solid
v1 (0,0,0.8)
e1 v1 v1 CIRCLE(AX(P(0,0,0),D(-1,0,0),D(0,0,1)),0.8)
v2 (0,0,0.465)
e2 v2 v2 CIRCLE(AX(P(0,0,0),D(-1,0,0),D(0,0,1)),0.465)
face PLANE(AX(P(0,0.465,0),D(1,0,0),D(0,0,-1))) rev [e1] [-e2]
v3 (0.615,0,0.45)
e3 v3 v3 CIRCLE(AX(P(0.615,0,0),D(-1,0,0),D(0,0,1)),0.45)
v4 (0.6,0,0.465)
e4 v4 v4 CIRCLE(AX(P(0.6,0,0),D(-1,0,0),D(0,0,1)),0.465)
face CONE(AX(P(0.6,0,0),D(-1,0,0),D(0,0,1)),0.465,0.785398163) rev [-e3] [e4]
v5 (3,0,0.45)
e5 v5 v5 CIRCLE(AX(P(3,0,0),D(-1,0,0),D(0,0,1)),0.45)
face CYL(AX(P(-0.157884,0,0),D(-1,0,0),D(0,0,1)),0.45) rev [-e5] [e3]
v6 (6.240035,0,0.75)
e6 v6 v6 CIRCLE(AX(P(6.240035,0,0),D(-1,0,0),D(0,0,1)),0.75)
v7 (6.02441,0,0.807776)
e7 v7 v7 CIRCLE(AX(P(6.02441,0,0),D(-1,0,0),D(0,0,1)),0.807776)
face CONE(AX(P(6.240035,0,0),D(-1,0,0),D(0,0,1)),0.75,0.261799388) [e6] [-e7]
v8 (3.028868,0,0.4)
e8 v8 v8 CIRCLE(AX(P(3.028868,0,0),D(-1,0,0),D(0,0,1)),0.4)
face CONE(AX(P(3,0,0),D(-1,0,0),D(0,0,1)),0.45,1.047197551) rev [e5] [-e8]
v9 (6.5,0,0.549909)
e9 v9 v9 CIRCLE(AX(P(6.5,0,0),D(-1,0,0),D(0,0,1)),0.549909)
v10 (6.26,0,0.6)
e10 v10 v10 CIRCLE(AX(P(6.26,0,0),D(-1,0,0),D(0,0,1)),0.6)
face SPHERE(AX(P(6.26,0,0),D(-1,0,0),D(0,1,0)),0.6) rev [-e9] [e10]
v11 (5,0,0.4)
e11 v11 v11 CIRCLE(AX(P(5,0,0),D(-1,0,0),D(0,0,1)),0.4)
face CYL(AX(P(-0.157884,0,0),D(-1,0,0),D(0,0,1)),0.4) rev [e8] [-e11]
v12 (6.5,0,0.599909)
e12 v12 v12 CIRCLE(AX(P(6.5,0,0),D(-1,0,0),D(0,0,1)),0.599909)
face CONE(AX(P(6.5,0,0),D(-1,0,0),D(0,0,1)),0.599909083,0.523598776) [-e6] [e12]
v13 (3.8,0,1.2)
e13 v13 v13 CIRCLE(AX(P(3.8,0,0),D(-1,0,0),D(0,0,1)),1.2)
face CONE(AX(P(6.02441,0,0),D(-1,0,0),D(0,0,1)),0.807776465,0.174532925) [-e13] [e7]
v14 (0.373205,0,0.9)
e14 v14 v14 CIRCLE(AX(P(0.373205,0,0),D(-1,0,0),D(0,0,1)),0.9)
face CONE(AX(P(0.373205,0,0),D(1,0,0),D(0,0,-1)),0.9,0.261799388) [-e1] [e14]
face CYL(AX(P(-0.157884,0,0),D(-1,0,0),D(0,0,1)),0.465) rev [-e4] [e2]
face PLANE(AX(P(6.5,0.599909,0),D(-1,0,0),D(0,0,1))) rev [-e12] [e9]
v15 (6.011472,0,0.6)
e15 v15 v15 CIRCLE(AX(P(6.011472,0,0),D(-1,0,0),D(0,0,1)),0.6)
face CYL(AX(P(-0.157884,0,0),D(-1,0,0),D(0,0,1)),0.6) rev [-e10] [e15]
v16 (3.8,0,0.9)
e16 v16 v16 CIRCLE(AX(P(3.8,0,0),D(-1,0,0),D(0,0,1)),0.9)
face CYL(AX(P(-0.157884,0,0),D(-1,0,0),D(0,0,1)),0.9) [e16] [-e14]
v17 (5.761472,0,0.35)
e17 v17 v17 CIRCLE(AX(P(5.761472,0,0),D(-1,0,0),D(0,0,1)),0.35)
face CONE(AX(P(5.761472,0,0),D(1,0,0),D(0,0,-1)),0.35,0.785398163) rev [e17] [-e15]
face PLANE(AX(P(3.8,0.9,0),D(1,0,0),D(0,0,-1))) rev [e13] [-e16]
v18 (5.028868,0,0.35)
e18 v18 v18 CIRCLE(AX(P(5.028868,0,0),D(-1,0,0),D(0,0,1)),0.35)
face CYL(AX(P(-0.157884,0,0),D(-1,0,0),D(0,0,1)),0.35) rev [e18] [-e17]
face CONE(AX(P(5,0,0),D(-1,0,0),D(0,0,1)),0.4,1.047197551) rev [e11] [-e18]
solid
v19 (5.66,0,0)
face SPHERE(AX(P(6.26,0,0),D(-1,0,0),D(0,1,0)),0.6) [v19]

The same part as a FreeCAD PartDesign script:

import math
import FreeCAD as App
import Part
import Sketcher
Q = App.Units.Quantity

doc = App.newDocument("Part")
body = doc.addObject("PartDesign::Body", "Body")

# Sketch on XY plane
sketch1 = doc.addObject("Sketcher::SketchObject", "Sketch")
body.addObject(sketch1)
sketch1.AttachmentSupport = (doc.XY_Plane, [""])
sketch1.MapMode = "FlatFace"
sketch1.addGeometry([
    Part.LineSegment(App.Vector(0, 0.8, 0), App.Vector(0, 0.465, 0)),  # 0
    Part.LineSegment(App.Vector(0, 0.465, 0), App.Vector(0.6, 0.465, 0)),  # 1
    Part.LineSegment(App.Vector(0.6, 0.465, 0), App.Vector(0.615, 0.45, 0)),  # 2
    Part.LineSegment(App.Vector(0.615, 0.45, 0), App.Vector(3, 0.45, 0)),  # 3
    Part.LineSegment(App.Vector(3, 0.45, 0), App.Vector(3.029, 0.4, 0)),  # 4
    Part.LineSegment(App.Vector(3.029, 0.4, 0), App.Vector(5, 0.4, 0)),  # 5
    Part.LineSegment(App.Vector(5, 0.4, 0), App.Vector(5.029, 0.35, 0)),  # 6
    Part.LineSegment(App.Vector(5.029, 0.35, 0), App.Vector(5.761, 0.35, 0)),  # 7
    Part.LineSegment(App.Vector(5.761, 0.35, 0), App.Vector(6.011, 0.6, 0)),  # 8
    Part.LineSegment(App.Vector(6.011, 0.6, 0), App.Vector(6.26, 0.6, 0)),  # 9
    Part.ArcOfCircle(Part.Circle(App.Vector(6.26, 0, 0), App.Vector(0, 0, 1), 0.6), math.radians(66), math.radians(90)),  # 10
    Part.LineSegment(App.Vector(6.5, 0.55, 0), App.Vector(6.5, 0.6, 0)),  # 11
    Part.LineSegment(App.Vector(6.5, 0.6, 0), App.Vector(6.24, 0.75, 0)),  # 12
    Part.LineSegment(App.Vector(6.24, 0.75, 0), App.Vector(6.024, 0.808, 0)),  # 13
    Part.LineSegment(App.Vector(6.024, 0.808, 0), App.Vector(3.8, 1.2, 0)),  # 14
    Part.LineSegment(App.Vector(3.8, 1.2, 0), App.Vector(3.8, 0.9, 0)),  # 15
    Part.LineSegment(App.Vector(3.8, 0.9, 0), App.Vector(0.373, 0.9, 0)),  # 16
    Part.LineSegment(App.Vector(0.373, 0.9, 0), App.Vector(0, 0.8, 0)),  # 17
], False)
sketch1.addConstraint([
    Sketcher.Constraint("Coincident", 0, 2, 1, 1),
    Sketcher.Constraint("Coincident", 1, 2, 2, 1),
    Sketcher.Constraint("Coincident", 2, 2, 3, 1),
    Sketcher.Constraint("Coincident", 3, 2, 4, 1),
    Sketcher.Constraint("Coincident", 4, 2, 5, 1),
    Sketcher.Constraint("Coincident", 5, 2, 6, 1),
    Sketcher.Constraint("Coincident", 6, 2, 7, 1),
    Sketcher.Constraint("Coincident", 7, 2, 8, 1),
    Sketcher.Constraint("Coincident", 8, 2, 9, 1),
    Sketcher.Constraint("Tangent", 9, 2, 10, 2),
    Sketcher.Constraint("Coincident", 10, 1, 11, 1),
    Sketcher.Constraint("Coincident", 11, 2, 12, 1),
    Sketcher.Constraint("Coincident", 12, 2, 13, 1),
    Sketcher.Constraint("Coincident", 13, 2, 14, 1),
    Sketcher.Constraint("Coincident", 14, 2, 15, 1),
    Sketcher.Constraint("Coincident", 15, 2, 16, 1),
    Sketcher.Constraint("Coincident", 16, 2, 17, 1),
    Sketcher.Constraint("Coincident", 17, 2, 0, 1),
    Sketcher.Constraint("Vertical", 0),
    Sketcher.Constraint("Horizontal", 1),
    Sketcher.Constraint("Horizontal", 3),
    Sketcher.Constraint("Horizontal", 5),
    Sketcher.Constraint("Horizontal", 7),
    Sketcher.Constraint("Horizontal", 9),
    Sketcher.Constraint("Vertical", 11),
    Sketcher.Constraint("Vertical", 15),
    Sketcher.Constraint("Horizontal", 16),
    Sketcher.Constraint("PointOnObject", 10, 3, -1),
    Sketcher.Constraint("PointOnObject", 0, 2, -2),
    Sketcher.Constraint("Parallel", 4, 6),
    Sketcher.Constraint("Perpendicular", 2, 8),
    Sketcher.Constraint("Equal", 4, 6),
    Sketcher.Constraint("Radius", 10, 0.6),
    Sketcher.Constraint("Angle", 2, Q("-45 deg")),
    Sketcher.Constraint("Angle", 4, Q("-60 deg")),
    Sketcher.Constraint("Angle", 12, Q("150 deg")),
    Sketcher.Constraint("Angle", 13, Q("165 deg")),
    Sketcher.Constraint("Angle", 14, Q("170 deg")),
    Sketcher.Constraint("Angle", 17, Q("-165 deg")),
    Sketcher.Constraint("DistanceX", 1, 1, 1, 2, 0.6),
    Sketcher.Constraint("DistanceY", 15, 2, 15, 1, 0.3),
    Sketcher.Constraint("DistanceX", -1, 1, 3, 2, 3.0),
    Sketcher.Constraint("DistanceX", -1, 1, 5, 2, 5.0),
    Sketcher.Constraint("DistanceY", 11, 1, 11, 2, 0.05),
    Sketcher.Constraint("DistanceY", -1, 1, 4, 2, 0.4),
    Sketcher.Constraint("DistanceX", -1, 1, 10, 1, 6.5),
    Sketcher.Constraint("DistanceX", -1, 1, 14, 2, 3.8),
    Sketcher.Constraint("DistanceY", -1, 1, 14, 2, 1.2),
    Sketcher.Constraint("DistanceY", -1, 1, 17, 2, 0.8),
    Sketcher.Constraint("DistanceY", 6, 2, 3, 2, 0.1),
    Sketcher.Constraint("DistanceY", 7, 2, 12, 2, 0.4),
    Sketcher.Constraint("DistanceX", 3, 1, 3, 2, 2.385),
    Sketcher.Constraint("DistanceX", -1, 1, 10, 3, 6.26),
    Sketcher.Constraint("DistanceX", 9, 1, 9, 2, 0.248528),
])
revolution = doc.addObject("PartDesign::Revolution", "Revolution")
body.addObject(revolution)
revolution.Profile = sketch1
revolution.ReferenceAxis = (sketch1, ["H_Axis"])
revolution.Angle = 360
body2 = doc.addObject("PartDesign::Body", "Body001")

# Sketch on XY plane
sketch2 = doc.addObject("Sketcher::SketchObject", "Sketch001")
body2.addObject(sketch2)
sketch2.AttachmentSupport = (doc.getObject("XY_Plane001"), [""])
sketch2.MapMode = "FlatFace"
sketch2.addGeometry([
    Part.LineSegment(App.Vector(5.7, 0, 0), App.Vector(6.9, 0, 0)),
    Part.ArcOfCircle(Part.Circle(App.Vector(6.3, 0, 0), App.Vector(0, 0, 1), 0.6), math.radians(0), math.radians(180)),
], False)
sketch2.addConstraint([
    Sketcher.Constraint("Coincident", 0, 1, 1, 2),
    Sketcher.Constraint("Coincident", 1, 1, 0, 2),
    Sketcher.Constraint("Horizontal", 0),
    Sketcher.Constraint("PointOnObject", 1, 3, -1),
    Sketcher.Constraint("PointOnObject", 0, 1, -1),
    Sketcher.Constraint("Radius", 1, 0.6),
    Sketcher.Constraint("DistanceX", -1, 1, 1, 3, 6.26),
])
revolution2 = doc.addObject("PartDesign::Revolution", "Revolution001")
body2.addObject(revolution2)
revolution2.Profile = sketch2
revolution2.ReferenceAxis = (sketch2, ["H_Axis"])
revolution2.Angle = 360

doc.recompute()
